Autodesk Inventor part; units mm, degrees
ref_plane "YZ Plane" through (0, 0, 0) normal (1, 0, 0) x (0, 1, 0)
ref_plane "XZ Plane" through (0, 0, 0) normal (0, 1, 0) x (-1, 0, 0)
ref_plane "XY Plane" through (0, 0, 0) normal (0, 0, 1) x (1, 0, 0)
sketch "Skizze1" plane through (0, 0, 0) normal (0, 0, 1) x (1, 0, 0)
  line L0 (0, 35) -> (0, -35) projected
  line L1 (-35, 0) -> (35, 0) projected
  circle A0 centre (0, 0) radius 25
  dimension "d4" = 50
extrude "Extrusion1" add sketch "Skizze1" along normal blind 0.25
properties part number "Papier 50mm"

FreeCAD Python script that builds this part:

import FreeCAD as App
import Part
import Sketcher

doc = App.newDocument("Part")
body = doc.addObject("PartDesign::Body", "Body")

# Sketch on XY plane
sketch1 = body.newObject("Sketcher::SketchObject", "Sketch")
sketch1.AttachmentSupport = (doc.getObject("XY_Plane"), [""])
sketch1.MapMode = "FlatFace"
sketch1.addGeometry(Part.Circle(App.Vector(0, 0, 0), App.Vector(0, 0, 1), 25), False)
sketch1.addConstraint(Sketcher.Constraint("Coincident", 0, 3, -1, 1))
sketch1.addConstraint(Sketcher.Constraint("Diameter", 0, 50.0))
pad1 = body.newObject("PartDesign::Pad", "Pad")
pad1.Profile = sketch1
pad1.Length = 0.25

doc.recompute()
